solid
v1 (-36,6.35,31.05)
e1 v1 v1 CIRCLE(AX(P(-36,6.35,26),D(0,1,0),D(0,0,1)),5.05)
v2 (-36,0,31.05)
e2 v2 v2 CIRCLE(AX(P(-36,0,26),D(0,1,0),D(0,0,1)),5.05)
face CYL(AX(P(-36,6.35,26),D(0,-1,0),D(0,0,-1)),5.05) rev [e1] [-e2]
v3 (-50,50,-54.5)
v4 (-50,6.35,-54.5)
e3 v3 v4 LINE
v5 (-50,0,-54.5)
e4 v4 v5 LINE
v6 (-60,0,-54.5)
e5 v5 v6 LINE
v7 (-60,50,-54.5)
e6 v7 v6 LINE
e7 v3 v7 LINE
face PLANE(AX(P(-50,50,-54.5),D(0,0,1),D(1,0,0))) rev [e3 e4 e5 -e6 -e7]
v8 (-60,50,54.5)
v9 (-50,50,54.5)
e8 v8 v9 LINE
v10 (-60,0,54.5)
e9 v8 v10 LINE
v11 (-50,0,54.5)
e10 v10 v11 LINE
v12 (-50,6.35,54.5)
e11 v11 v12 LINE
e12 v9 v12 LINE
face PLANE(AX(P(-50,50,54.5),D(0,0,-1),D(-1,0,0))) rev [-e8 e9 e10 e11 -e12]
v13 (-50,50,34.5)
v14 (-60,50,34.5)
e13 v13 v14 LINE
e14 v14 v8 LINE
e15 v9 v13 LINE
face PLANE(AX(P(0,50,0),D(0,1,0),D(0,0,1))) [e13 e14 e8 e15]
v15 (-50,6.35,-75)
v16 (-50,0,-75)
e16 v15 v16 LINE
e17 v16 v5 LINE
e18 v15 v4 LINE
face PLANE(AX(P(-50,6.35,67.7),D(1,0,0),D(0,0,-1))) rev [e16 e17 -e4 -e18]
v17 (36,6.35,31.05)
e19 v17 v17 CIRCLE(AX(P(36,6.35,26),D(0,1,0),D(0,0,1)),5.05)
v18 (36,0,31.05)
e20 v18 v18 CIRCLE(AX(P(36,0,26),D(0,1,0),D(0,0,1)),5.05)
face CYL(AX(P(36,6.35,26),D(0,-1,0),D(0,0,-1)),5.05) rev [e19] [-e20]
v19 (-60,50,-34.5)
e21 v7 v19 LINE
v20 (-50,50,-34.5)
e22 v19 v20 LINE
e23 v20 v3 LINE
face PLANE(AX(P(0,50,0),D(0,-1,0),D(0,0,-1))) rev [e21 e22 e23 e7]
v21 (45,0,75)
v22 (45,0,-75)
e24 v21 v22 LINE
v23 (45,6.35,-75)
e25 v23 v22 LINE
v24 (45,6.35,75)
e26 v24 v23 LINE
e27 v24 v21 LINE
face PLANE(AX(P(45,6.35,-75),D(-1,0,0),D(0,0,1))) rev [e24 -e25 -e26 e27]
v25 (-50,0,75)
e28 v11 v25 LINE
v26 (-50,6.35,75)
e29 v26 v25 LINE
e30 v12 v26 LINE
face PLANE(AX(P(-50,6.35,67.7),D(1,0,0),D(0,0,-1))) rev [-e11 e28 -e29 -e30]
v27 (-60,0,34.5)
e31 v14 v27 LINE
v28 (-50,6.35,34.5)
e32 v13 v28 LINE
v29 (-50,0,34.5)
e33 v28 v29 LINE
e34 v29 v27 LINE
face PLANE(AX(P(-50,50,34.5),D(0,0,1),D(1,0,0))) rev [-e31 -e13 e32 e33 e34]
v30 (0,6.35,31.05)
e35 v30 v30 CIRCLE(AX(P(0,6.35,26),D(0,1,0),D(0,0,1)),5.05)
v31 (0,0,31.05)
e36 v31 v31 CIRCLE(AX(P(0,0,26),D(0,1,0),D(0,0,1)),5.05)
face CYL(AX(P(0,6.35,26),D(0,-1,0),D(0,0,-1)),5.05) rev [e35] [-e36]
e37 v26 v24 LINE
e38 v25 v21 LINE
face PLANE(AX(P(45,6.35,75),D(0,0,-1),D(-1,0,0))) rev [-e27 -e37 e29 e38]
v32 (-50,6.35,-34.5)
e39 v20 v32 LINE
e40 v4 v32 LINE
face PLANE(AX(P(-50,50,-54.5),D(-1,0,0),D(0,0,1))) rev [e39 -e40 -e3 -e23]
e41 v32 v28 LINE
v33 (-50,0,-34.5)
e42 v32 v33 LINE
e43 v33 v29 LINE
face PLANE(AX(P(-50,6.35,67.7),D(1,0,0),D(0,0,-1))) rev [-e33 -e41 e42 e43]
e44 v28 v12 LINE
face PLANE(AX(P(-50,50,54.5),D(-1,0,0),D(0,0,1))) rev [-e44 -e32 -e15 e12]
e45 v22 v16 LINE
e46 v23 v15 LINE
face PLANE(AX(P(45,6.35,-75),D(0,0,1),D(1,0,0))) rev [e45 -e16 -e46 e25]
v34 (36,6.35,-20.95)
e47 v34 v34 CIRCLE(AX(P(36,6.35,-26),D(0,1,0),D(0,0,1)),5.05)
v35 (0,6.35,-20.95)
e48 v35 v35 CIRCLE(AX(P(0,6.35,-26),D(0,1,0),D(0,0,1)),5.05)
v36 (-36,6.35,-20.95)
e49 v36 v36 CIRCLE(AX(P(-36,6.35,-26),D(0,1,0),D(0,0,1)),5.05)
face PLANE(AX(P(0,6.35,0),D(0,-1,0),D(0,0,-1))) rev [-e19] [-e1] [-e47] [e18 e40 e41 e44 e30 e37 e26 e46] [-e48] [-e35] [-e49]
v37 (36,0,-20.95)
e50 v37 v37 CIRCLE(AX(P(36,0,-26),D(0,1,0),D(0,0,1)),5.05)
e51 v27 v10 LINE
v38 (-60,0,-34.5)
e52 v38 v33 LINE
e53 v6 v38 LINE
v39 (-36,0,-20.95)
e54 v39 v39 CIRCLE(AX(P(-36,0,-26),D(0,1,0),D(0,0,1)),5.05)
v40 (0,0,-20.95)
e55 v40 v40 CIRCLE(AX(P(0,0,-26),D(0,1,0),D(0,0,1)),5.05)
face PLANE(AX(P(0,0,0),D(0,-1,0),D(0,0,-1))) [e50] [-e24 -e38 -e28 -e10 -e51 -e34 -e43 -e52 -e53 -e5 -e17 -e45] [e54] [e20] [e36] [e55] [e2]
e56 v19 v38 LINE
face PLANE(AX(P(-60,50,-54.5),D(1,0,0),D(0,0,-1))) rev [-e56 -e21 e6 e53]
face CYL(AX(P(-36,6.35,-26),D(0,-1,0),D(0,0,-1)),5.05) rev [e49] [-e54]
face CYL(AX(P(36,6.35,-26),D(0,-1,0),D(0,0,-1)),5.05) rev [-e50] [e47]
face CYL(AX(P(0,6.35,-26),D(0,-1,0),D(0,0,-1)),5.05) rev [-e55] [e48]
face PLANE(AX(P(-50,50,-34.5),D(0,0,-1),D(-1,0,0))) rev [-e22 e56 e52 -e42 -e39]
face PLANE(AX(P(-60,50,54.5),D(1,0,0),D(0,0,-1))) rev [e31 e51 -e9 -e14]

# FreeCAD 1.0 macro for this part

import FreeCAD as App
import Part
import Sketcher

V = App.Vector
Q = App.Units.Quantity

doc = App.newDocument("Part")
body = doc.addObject("PartDesign::Body", "Body")

# Sketch on XZ plane
sketch1 = body.newObject("Sketcher::SketchObject", "Sketch")
sketch1.AttachmentSupport = (doc.getObject("XZ_Plane"), [""])
sketch1.MapMode = "FlatFace"
sketch1.addGeometry(Part.LineSegment(V(45, -75, 0), V(-50, -75, 0)), False)
sketch1.addGeometry(Part.LineSegment(V(-50, -75, 0), V(-50, 75, 0)), False)
sketch1.addGeometry(Part.LineSegment(V(-50, 75, 0), V(45, 75, 0)), False)
sketch1.addGeometry(Part.LineSegment(V(45, 75, 0), V(45, -75, 0)), False)
sketch1.addGeometry(Part.Circle(V(-36, 26, 0), V(0, 0, 1), 5.05), False)
sketch1.addGeometry(Part.Circle(V(0, 26, 0), V(0, 0, 1), 5.05), False)
sketch1.addGeometry(Part.Circle(V(36, 26, 0), V(0, 0, 1), 5.05), False)
sketch1.addGeometry(Part.Circle(V(-36, -26, 0), V(0, 0, 1), 5.05), False)
sketch1.addGeometry(Part.Circle(V(0, -26, 0), V(0, 0, 1), 5.05), False)
sketch1.addGeometry(Part.Circle(V(36, -26, 0), V(0, 0, 1), 5.05), False)
sketch1.addConstraint(Sketcher.Constraint("Coincident", 0, 2, 1, 1))
sketch1.addConstraint(Sketcher.Constraint("Coincident", 1, 2, 2, 1))
sketch1.addConstraint(Sketcher.Constraint("Coincident", 2, 2, 3, 1))
sketch1.addConstraint(Sketcher.Constraint("Coincident", 3, 2, 0, 1))
sketch1.addConstraint(Sketcher.Constraint("Horizontal", 0))
sketch1.addConstraint(Sketcher.Constraint("Vertical", 1))
sketch1.addConstraint(Sketcher.Constraint("Horizontal", 2))
sketch1.addConstraint(Sketcher.Constraint("Vertical", 3))
sketch1.addConstraint(Sketcher.Constraint("Equal", 4, 5))
sketch1.addConstraint(Sketcher.Constraint("Equal", 5, 6))
sketch1.addConstraint(Sketcher.Constraint("Equal", 6, 7))
sketch1.addConstraint(Sketcher.Constraint("Equal", 7, 8))
sketch1.addConstraint(Sketcher.Constraint("Equal", 8, 9))
sketch1.addConstraint(Sketcher.Constraint("Symmetric", 6, 3, 7, 3, -1, 1))
sketch1.addConstraint(Sketcher.Constraint("Symmetric", 5, 3, 8, 3, -1, 1))
sketch1.addConstraint(Sketcher.Constraint("Symmetric", 4, 3, 9, 3, -1, 1))
sketch1.addConstraint(Sketcher.Constraint("Symmetric", 4, 3, 6, 3, -2))
sketch1.addConstraint(Sketcher.Constraint("PointOnObject", 5, 3, -2))
sketch1.addConstraint(Sketcher.Constraint("Horizontal", 4, 3, 5, 3))
sketch1.addConstraint(Sketcher.Constraint("Diameter", 4, Q("10.1 mm")))
sketch1.addConstraint(Sketcher.Constraint("DistanceX", 0, 2, 0, 1, Q("95 mm")))
sketch1.addConstraint(Sketcher.Constraint("DistanceY", 1, 1, 1, 2, Q("150 mm")))
sketch1.addConstraint(Sketcher.Constraint("DistanceX", 4, 3, -1, 1, Q("36 mm")))
sketch1.addConstraint(Sketcher.Constraint("DistanceY", -1, 1, 4, 3, Q("26 mm")))
sketch1.addConstraint(Sketcher.Constraint("DistanceX", 0, 2, -1, 1, Q("50 mm")))
sketch1.addConstraint(Sketcher.Constraint("DistanceY", 0, 2, -1, 1, Q("75 mm")))
pad1 = body.newObject("PartDesign::Pad", "Pad")
pad1.Profile = sketch1
pad1.Length = 6.35
pad1.Reversed = True

# Sketch on XZ plane
sketch2 = body.newObject("Sketcher::SketchObject", "Sketch001")
sketch2.AttachmentSupport = (doc.getObject("XZ_Plane"), [""])
sketch2.MapMode = "FlatFace"
sketch2.addGeometry(Part.LineSegment(V(-60, -54.5, 0), V(-60, -34.5, 0)), False)
sketch2.addGeometry(Part.LineSegment(V(-60, -34.5, 0), V(-50, -34.5, 0)), False)
sketch2.addGeometry(Part.LineSegment(V(-50, -34.5, 0), V(-50, -54.5, 0)), False)
sketch2.addGeometry(Part.LineSegment(V(-50, -54.5, 0), V(-60, -54.5, 0)), False)
sketch2.addGeometry(Part.LineSegment(V(-60, 34.5, 0), V(-60, 54.5, 0)), False)
sketch2.addGeometry(Part.LineSegment(V(-60, 54.5, 0), V(-50, 54.5, 0)), False)
sketch2.addGeometry(Part.LineSegment(V(-50, 54.5, 0), V(-50, 34.5, 0)), False)
sketch2.addGeometry(Part.LineSegment(V(-50, 34.5, 0), V(-60, 34.5, 0)), False)
sketch2.addConstraint(Sketcher.Constraint("Coincident", 0, 2, 1, 1))
sketch2.addConstraint(Sketcher.Constraint("Coincident", 1, 2, 2, 1))
sketch2.addConstraint(Sketcher.Constraint("Coincident", 2, 2, 3, 1))
sketch2.addConstraint(Sketcher.Constraint("Coincident", 3, 2, 0, 1))
sketch2.addConstraint(Sketcher.Constraint("Coincident", 4, 2, 5, 1))
sketch2.addConstraint(Sketcher.Constraint("Coincident", 5, 2, 6, 1))
sketch2.addConstraint(Sketcher.Constraint("Coincident", 6, 2, 7, 1))
sketch2.addConstraint(Sketcher.Constraint("Coincident", 7, 2, 4, 1))
sketch2.addConstraint(Sketcher.Constraint("Vertical", 0))
sketch2.addConstraint(Sketcher.Constraint("Horizontal", 1))
sketch2.addConstraint(Sketcher.Constraint("Vertical", 2))
sketch2.addConstraint(Sketcher.Constraint("Horizontal", 3))
sketch2.addConstraint(Sketcher.Constraint("Vertical", 4))
sketch2.addConstraint(Sketcher.Constraint("Horizontal", 5))
sketch2.addConstraint(Sketcher.Constraint("Vertical", 6))
sketch2.addConstraint(Sketcher.Constraint("Horizontal", 7))
sketch2.addConstraint(Sketcher.Constraint("Symmetric", 3, 2, 4, 2, -1))
sketch2.addConstraint(Sketcher.Constraint("Symmetric", 1, 2, 6, 2, -1))
sketch2.addConstraint(Sketcher.Constraint("DistanceX", 1, 1, 1, 2, Q("10 mm")))
sketch2.addConstraint(Sketcher.Constraint("DistanceY", 0, 1, 0, 2, Q("20 mm")))
sketch2.addConstraint(Sketcher.Constraint("DistanceX", 0, 2, -1, 1, Q("60 mm")))
sketch2.addConstraint(Sketcher.Constraint("DistanceY", 0, 2, 4, 2, Q("89 mm")))
pad2 = body.newObject("PartDesign::Pad", "Pad001")
pad2.Profile = sketch2
pad2.Length = 50
pad2.Reversed = True

doc.recompute()
